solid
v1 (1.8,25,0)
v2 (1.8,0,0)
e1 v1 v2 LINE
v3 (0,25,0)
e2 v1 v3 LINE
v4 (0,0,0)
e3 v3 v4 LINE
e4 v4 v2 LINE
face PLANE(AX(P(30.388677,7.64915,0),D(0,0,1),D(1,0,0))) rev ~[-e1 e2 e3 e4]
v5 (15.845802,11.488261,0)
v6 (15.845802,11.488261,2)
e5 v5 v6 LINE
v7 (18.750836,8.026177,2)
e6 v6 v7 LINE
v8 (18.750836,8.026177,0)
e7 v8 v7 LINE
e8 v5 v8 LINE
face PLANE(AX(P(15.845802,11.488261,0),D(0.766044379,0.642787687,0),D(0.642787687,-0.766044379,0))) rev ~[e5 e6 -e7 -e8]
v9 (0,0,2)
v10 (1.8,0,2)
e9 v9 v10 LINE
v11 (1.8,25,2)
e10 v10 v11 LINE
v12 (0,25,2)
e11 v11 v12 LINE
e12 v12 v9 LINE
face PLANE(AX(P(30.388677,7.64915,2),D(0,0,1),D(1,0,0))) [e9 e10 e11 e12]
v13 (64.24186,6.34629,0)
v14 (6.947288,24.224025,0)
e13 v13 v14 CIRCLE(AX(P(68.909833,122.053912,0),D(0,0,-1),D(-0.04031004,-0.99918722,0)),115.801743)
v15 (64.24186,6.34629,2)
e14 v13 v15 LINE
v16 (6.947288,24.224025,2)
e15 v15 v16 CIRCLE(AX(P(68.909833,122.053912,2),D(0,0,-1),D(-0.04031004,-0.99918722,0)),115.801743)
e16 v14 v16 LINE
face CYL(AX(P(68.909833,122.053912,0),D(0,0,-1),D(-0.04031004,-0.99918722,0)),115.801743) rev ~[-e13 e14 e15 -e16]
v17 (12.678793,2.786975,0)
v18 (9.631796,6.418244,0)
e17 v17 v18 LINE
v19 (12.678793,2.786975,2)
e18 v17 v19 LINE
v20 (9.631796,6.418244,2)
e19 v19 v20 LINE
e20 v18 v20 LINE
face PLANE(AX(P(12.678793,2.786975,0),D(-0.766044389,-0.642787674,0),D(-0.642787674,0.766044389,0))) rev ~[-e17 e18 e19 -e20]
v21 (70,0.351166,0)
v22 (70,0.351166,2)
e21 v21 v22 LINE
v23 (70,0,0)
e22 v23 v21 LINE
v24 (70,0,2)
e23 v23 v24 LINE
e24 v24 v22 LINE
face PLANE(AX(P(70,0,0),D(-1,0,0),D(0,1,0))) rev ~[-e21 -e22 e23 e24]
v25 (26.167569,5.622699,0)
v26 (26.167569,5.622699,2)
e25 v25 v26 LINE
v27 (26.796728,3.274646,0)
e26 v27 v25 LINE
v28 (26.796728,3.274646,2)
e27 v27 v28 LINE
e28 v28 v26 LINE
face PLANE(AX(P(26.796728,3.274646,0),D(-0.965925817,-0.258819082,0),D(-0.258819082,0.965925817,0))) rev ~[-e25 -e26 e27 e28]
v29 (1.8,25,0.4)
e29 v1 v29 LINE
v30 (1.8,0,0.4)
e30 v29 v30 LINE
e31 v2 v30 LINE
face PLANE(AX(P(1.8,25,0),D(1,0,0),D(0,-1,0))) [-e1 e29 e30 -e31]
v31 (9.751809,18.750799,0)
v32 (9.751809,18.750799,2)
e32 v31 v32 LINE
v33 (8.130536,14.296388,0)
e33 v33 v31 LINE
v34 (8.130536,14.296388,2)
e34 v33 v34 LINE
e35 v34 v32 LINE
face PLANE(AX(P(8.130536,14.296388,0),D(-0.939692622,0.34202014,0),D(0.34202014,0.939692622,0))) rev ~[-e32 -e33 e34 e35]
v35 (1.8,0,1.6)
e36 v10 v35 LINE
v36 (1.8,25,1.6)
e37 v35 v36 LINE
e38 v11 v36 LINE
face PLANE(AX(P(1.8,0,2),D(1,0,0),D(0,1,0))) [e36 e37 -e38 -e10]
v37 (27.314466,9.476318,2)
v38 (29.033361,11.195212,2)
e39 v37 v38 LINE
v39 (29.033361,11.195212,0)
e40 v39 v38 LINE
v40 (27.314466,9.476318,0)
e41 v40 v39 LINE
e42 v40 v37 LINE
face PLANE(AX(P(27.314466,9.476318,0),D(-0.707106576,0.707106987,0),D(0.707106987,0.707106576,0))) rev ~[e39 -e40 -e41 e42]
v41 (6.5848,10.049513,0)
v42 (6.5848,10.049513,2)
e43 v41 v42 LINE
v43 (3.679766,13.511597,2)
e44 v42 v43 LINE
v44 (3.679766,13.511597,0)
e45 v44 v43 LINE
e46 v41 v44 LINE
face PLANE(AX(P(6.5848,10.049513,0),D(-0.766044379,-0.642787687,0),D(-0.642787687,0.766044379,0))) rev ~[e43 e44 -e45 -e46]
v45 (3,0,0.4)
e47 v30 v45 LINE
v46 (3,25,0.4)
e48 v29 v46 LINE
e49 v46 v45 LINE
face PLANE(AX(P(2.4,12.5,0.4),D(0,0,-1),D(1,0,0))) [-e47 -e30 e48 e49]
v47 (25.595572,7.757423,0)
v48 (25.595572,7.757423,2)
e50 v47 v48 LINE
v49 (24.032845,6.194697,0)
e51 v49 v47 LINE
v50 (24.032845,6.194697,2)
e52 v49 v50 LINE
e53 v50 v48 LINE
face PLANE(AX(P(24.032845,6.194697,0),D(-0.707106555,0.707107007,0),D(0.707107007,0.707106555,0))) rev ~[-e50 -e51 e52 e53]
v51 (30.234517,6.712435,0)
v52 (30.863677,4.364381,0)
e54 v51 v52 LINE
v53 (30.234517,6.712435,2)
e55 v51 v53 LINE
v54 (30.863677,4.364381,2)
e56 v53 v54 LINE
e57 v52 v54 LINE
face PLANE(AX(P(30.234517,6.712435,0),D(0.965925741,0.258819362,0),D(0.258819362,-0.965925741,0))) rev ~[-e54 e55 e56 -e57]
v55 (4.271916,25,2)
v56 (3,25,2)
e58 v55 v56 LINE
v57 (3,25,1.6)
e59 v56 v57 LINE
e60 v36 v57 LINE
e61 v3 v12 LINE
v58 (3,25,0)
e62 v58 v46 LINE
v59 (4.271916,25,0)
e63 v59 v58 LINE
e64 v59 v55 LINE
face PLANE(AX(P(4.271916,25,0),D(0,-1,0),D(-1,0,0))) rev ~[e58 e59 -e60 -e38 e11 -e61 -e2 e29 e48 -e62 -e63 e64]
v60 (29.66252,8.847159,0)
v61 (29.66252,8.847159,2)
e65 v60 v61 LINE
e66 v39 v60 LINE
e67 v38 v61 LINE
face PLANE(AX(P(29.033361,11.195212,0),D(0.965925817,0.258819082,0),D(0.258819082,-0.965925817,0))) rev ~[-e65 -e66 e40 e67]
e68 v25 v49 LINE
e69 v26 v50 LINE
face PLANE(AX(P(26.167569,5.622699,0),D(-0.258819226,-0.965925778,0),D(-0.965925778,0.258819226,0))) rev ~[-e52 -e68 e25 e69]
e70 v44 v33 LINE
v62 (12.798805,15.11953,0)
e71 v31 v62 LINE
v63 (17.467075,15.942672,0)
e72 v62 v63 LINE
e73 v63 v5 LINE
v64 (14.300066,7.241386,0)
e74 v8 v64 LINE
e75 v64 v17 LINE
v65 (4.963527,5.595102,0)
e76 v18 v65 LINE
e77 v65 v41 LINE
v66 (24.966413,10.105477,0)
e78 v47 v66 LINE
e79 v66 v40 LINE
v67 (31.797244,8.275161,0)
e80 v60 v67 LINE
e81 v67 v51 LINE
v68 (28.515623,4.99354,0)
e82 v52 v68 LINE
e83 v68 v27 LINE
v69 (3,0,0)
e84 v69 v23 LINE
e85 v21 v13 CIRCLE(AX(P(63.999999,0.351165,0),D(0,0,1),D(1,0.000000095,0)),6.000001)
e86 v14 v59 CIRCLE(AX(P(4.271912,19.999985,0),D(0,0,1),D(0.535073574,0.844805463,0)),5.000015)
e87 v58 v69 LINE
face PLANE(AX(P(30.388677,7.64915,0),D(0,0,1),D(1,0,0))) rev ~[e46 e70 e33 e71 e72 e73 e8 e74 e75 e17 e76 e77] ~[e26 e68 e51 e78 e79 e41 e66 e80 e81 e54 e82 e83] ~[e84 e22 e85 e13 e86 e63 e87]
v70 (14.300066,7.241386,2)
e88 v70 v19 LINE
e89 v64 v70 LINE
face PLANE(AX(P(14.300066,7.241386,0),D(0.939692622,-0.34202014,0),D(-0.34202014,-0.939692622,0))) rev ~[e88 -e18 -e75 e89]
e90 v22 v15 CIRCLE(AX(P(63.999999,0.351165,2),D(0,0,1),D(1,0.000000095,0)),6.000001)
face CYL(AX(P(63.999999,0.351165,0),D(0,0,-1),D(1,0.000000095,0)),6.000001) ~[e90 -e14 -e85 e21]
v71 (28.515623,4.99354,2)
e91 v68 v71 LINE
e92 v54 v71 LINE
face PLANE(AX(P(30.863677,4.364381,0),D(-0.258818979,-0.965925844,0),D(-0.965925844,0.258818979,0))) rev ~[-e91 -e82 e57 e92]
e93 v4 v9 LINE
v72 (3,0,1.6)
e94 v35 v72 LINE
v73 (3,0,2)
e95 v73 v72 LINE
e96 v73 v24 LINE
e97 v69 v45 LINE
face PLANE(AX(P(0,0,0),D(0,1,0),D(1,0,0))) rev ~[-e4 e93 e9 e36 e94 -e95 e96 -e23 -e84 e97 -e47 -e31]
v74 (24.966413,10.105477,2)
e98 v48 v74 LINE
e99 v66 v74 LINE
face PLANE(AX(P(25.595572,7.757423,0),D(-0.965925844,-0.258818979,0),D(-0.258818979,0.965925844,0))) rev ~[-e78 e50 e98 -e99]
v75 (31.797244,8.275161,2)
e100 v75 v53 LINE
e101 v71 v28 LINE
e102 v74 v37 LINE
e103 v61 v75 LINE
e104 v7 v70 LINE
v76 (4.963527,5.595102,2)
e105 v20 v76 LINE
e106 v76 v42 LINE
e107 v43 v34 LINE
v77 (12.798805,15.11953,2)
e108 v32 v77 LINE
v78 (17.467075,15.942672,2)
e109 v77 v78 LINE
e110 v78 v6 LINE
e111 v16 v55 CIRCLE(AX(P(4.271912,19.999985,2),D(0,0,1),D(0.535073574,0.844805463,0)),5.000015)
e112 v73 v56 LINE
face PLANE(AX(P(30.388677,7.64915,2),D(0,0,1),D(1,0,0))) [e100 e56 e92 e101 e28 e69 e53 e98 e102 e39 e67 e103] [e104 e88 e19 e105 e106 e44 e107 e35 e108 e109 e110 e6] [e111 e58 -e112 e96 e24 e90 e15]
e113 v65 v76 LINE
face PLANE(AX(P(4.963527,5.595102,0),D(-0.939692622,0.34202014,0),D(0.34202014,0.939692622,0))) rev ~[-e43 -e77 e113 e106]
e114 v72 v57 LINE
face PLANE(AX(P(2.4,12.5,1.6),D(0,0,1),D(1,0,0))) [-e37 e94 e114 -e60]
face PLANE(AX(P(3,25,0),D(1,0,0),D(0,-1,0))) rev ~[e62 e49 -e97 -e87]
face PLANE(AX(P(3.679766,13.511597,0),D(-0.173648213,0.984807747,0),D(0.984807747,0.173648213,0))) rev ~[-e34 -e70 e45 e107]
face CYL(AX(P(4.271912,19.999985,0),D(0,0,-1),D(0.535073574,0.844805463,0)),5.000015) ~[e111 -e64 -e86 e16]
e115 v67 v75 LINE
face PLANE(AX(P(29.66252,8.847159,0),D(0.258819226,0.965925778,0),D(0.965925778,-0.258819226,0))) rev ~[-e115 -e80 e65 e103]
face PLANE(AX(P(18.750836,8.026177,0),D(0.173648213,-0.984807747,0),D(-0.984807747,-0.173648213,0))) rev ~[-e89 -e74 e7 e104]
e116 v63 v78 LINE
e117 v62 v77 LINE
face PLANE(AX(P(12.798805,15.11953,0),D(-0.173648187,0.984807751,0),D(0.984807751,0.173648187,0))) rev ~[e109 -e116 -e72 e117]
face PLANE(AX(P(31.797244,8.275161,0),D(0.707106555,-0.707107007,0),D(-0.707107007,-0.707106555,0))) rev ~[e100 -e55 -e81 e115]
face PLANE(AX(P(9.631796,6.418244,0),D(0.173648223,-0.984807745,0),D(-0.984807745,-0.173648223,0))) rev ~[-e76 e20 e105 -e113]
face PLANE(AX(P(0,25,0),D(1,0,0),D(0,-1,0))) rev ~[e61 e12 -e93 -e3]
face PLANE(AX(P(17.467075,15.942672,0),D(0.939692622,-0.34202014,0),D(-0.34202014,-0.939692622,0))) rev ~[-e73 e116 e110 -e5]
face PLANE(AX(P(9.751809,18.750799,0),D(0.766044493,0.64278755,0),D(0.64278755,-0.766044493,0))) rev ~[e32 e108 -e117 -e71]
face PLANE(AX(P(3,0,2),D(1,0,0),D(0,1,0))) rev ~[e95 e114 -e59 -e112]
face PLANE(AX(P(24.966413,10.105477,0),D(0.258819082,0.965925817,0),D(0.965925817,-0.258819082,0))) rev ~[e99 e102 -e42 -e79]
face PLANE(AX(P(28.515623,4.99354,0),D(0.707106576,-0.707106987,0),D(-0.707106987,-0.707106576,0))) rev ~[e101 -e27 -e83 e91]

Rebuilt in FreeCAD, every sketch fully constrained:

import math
import FreeCAD as App
import Part
import Sketcher

V = App.Vector
Q = App.Units.Quantity


def add_polygon(sketch, points):
    """Adds a closed chain of lines whose ends are joined by coincident constraints."""
    first, n = sketch.GeometryCount, len(points)
    for a, b in zip(points, points[1:] + points[:1]):
        sketch.addGeometry(Part.LineSegment(App.Vector(*a, 0), App.Vector(*b, 0)), False)
    for i in range(n):
        sketch.addConstraint(Sketcher.Constraint("Coincident", first + i, 2, first + (i + 1) % n, 1))

doc = App.newDocument("Part")
body = doc.addObject("PartDesign::Body", "Body")

# Sketch on XY plane
sketch1 = doc.addObject("Sketcher::SketchObject", "Sketch")
body.addObject(sketch1)
sketch1.AttachmentSupport = (doc.XY_Plane, [""])
sketch1.MapMode = "FlatFace"
sketch1.addGeometry(Part.LineSegment(V(0, 25, 0), V(0, 0, 0)), False)  # 0
sketch1.addGeometry(Part.LineSegment(V(0, 0, 0), V(70, 0, 0)), False)  # 1
sketch1.addGeometry(Part.LineSegment(V(70, 0, 0), V(70, 0.35, 0)), False)  # 2
sketch1.addGeometry(Part.ArcOfCircle(Part.Circle(V(64, 0.35, 0), V(0, 0, 1), 6), math.radians(0), math.radians(88)), False)  # 3
sketch1.addGeometry(Part.ArcOfCircle(Part.Circle(V(68.91, 122.05, 0), V(0, 0, 1), 115.8), math.radians(-122), math.radians(-92)), False)  # 4
sketch1.addGeometry(Part.ArcOfCircle(Part.Circle(V(4.27, 20, 0), V(0, 0, 1), 5), math.radians(58), math.radians(90)), False)  # 5
sketch1.addGeometry(Part.LineSegment(V(4.27, 25, 0), V(0, 25, 0)), False)  # 6
add_polygon(sketch1, [(24.97, 10.11), (27.31, 9.48), (29.03, 11.2), (29.66, 8.85), (31.8, 8.28), (30.23, 6.71), (30.86, 4.36), (28.52, 4.99), (26.8, 3.27), (26.17, 5.62), (24.03, 6.19), (25.6, 7.76)])  # lines 7-18
add_polygon(sketch1, [(9.75, 18.75), (12.8, 15.12), (17.47, 15.94), (15.85, 11.49), (18.75, 8.03), (14.3, 7.24), (12.68, 2.79), (9.63, 6.42), (4.96, 5.6), (6.58, 10.05), (3.68, 13.51), (8.13, 14.3)])  # lines 19-30
sketch1.addConstraint(Sketcher.Constraint("Coincident", 0, 2, 1, 1))
sketch1.addConstraint(Sketcher.Constraint("Coincident", 1, 2, 2, 1))
sketch1.addConstraint(Sketcher.Constraint("Tangent", 2, 2, 3, 1))
sketch1.addConstraint(Sketcher.Constraint("Tangent", 3, 2, 4, 2))
sketch1.addConstraint(Sketcher.Constraint("Tangent", 4, 1, 5, 1))
sketch1.addConstraint(Sketcher.Constraint("Tangent", 5, 2, 6, 1))
sketch1.addConstraint(Sketcher.Constraint("Coincident", 6, 2, 0, 1))
sketch1.addConstraint(Sketcher.Constraint("Vertical", 0))
sketch1.addConstraint(Sketcher.Constraint("Horizontal", 1))
sketch1.addConstraint(Sketcher.Constraint("Vertical", 2))
sketch1.addConstraint(Sketcher.Constraint("Horizontal", 6))
sketch1.addConstraint(Sketcher.Constraint("Coincident", 0, 2, -1, 1))
sketch1.addConstraint(Sketcher.Constraint("Parallel", 7, 10))
sketch1.addConstraint(Sketcher.Constraint("Parallel", 8, 11))
sketch1.addConstraint(Sketcher.Constraint("Parallel", 9, 12))
sketch1.addConstraint(Sketcher.Constraint("Parallel", 10, 13))
sketch1.addConstraint(Sketcher.Constraint("Parallel", 11, 14))
sketch1.addConstraint(Sketcher.Constraint("Parallel", 12, 15))
sketch1.addConstraint(Sketcher.Constraint("Parallel", 13, 16))
sketch1.addConstraint(Sketcher.Constraint("Parallel", 14, 17))
sketch1.addConstraint(Sketcher.Constraint("Parallel", 15, 18))
sketch1.addConstraint(Sketcher.Constraint("Parallel", 19, 22))
sketch1.addConstraint(Sketcher.Constraint("Parallel", 20, 23))
sketch1.addConstraint(Sketcher.Constraint("Parallel", 21, 24))
sketch1.addConstraint(Sketcher.Constraint("Parallel", 22, 25))
sketch1.addConstraint(Sketcher.Constraint("Parallel", 23, 26))
sketch1.addConstraint(Sketcher.Constraint("Parallel", 24, 27))
sketch1.addConstraint(Sketcher.Constraint("Parallel", 25, 28))
sketch1.addConstraint(Sketcher.Constraint("Parallel", 26, 29))
sketch1.addConstraint(Sketcher.Constraint("Parallel", 27, 30))
sketch1.addConstraint(Sketcher.Constraint("Equal", 7, 8))
sketch1.addConstraint(Sketcher.Constraint("Equal", 8, 9))
sketch1.addConstraint(Sketcher.Constraint("Equal", 10, 11))
sketch1.addConstraint(Sketcher.Constraint("Equal", 9, 12))
sketch1.addConstraint(Sketcher.Constraint("Equal", 12, 13))
sketch1.addConstraint(Sketcher.Constraint("Equal", 13, 14))
sketch1.addConstraint(Sketcher.Constraint("Equal", 14, 15))
sketch1.addConstraint(Sketcher.Constraint("Equal", 11, 16))
sketch1.addConstraint(Sketcher.Constraint("Equal", 19, 20))
sketch1.addConstraint(Sketcher.Constraint("Equal", 20, 21))
sketch1.addConstraint(Sketcher.Constraint("Equal", 22, 23))
sketch1.addConstraint(Sketcher.Constraint("Equal", 21, 24))
sketch1.addConstraint(Sketcher.Constraint("Equal", 24, 25))
sketch1.addConstraint(Sketcher.Constraint("Equal", 25, 26))
sketch1.addConstraint(Sketcher.Constraint("Equal", 26, 27))
sketch1.addConstraint(Sketcher.Constraint("Equal", 23, 28))
sketch1.addConstraint(Sketcher.Constraint("Radius", 3, 6.000001))
sketch1.addConstraint(Sketcher.Constraint("DistanceX", 1, 1, 1, 2, 70.0))
sketch1.addConstraint(Sketcher.Constraint("DistanceY", 0, 2, 0, 1, 25.0))
sketch1.addConstraint(Sketcher.Constraint("Angle", 7, Q("-15.000002 deg")))
sketch1.addConstraint(Sketcher.Constraint("Angle", 8, Q("44.999983 deg")))
sketch1.addConstraint(Sketcher.Constraint("Angle", 9, Q("-74.999998 deg")))
sketch1.addConstraint(Sketcher.Constraint("Angle", 19, Q("-50.000004 deg")))
sketch1.addConstraint(Sketcher.Constraint("Angle", 20, Q("10.000001 deg")))
sketch1.addConstraint(Sketcher.Constraint("Angle", 21, Q("-110 deg")))
sketch1.addConstraint(Sketcher.Constraint("Radius", 4, 115.801743))
sketch1.addConstraint(Sketcher.Constraint("Radius", 5, 5.000015))
sketch1.addConstraint(Sketcher.Constraint("DistanceY", -1, 1, 15, 2, 5.622699))
sketch1.addConstraint(Sketcher.Constraint("DistanceY", -1, 1, 26, 2, 5.595102))
sketch1.addConstraint(Sketcher.Constraint("DistanceX", -1, 1, 27, 2, 6.5848))
sketch1.addConstraint(Sketcher.Constraint("DistanceY", -1, 1, 30, 2, 18.750799))
sketch1.addConstraint(Sketcher.Constraint("DistanceY", 22, 2, 18, 2, 2.0793))
sketch1.addConstraint(Sketcher.Constraint("Distance", 10, 2.210029))
sketch1.addConstraint(Sketcher.Constraint("Distance", 22, 4.51943))
sketch1.addConstraint(Sketcher.Constraint("DistanceX", 6, 2, 6, 1, 4.271916))
sketch1.addConstraint(Sketcher.Constraint("DistanceY", 2, 1, 2, 2, 0.351166))
sketch1.addConstraint(Sketcher.Constraint("DistanceX", -1, 1, 8, 2, 29.033361))
pad1 = doc.addObject("PartDesign::Pad", "Pad")
body.addObject(pad1)
pad1.Profile = sketch1
pad1.Length = 2

# Sketch on XY plane
sketch2 = doc.addObject("Sketcher::SketchObject", "Sketch001")
body.addObject(sketch2)
sketch2.AttachmentSupport = (doc.XY_Plane, [""])
sketch2.MapMode = "FlatFace"
sketch2.AttachmentOffset = App.Placement(V(0, 0, 2), App.Rotation())
add_polygon(sketch2, [(1.8, 25), (1.8, 0), (3, 0), (3, 25)])  # lines 0-3
sketch2.addConstraint(Sketcher.Constraint("Vertical", 0))
sketch2.addConstraint(Sketcher.Constraint("Horizontal", 1))
sketch2.addConstraint(Sketcher.Constraint("Vertical", 2))
sketch2.addConstraint(Sketcher.Constraint("Horizontal", 3))
sketch2.addConstraint(Sketcher.Constraint("PointOnObject", 0, 2, -1))
sketch2.addConstraint(Sketcher.Constraint("DistanceY", 0, 2, 0, 1, 25.0))
sketch2.addConstraint(Sketcher.Constraint("DistanceX", 1, 1, 1, 2, 1.2))
sketch2.addConstraint(Sketcher.Constraint("DistanceX", -1, 1, 1, 2, 3.0))
pocket1 = doc.addObject("PartDesign::Pocket", "Pocket")
body.addObject(pocket1)
pocket1.Profile = sketch2
pocket1.Length = 0.4

# Sketch on XY plane
sketch3 = doc.addObject("Sketcher::SketchObject", "Sketch002")
body.addObject(sketch3)
sketch3.AttachmentSupport = (doc.XY_Plane, [""])
sketch3.MapMode = "FlatFace"
add_polygon(sketch3, [(1.8, 0), (1.8, 25), (3, 25), (3, 0)])  # lines 0-3
sketch3.addConstraint(Sketcher.Constraint("Vertical", 0))
sketch3.addConstraint(Sketcher.Constraint("Horizontal", 1))
sketch3.addConstraint(Sketcher.Constraint("Vertical", 2))
sketch3.addConstraint(Sketcher.Constraint("Horizontal", 3))
sketch3.addConstraint(Sketcher.Constraint("PointOnObject", 2, 2, -1))
sketch3.addConstraint(Sketcher.Constraint("DistanceY", 0, 1, 0, 2, 25.0))
sketch3.addConstraint(Sketcher.Constraint("DistanceX", 1, 1, 1, 2, 1.2))
sketch3.addConstraint(Sketcher.Constraint("DistanceX", -1, 1, 1, 2, 3.0))
pocket2 = doc.addObject("PartDesign::Pocket", "Pocket001")
body.addObject(pocket2)
pocket2.Profile = sketch3
pocket2.Length = 0.4
pocket2.Reversed = True

doc.recompute()
